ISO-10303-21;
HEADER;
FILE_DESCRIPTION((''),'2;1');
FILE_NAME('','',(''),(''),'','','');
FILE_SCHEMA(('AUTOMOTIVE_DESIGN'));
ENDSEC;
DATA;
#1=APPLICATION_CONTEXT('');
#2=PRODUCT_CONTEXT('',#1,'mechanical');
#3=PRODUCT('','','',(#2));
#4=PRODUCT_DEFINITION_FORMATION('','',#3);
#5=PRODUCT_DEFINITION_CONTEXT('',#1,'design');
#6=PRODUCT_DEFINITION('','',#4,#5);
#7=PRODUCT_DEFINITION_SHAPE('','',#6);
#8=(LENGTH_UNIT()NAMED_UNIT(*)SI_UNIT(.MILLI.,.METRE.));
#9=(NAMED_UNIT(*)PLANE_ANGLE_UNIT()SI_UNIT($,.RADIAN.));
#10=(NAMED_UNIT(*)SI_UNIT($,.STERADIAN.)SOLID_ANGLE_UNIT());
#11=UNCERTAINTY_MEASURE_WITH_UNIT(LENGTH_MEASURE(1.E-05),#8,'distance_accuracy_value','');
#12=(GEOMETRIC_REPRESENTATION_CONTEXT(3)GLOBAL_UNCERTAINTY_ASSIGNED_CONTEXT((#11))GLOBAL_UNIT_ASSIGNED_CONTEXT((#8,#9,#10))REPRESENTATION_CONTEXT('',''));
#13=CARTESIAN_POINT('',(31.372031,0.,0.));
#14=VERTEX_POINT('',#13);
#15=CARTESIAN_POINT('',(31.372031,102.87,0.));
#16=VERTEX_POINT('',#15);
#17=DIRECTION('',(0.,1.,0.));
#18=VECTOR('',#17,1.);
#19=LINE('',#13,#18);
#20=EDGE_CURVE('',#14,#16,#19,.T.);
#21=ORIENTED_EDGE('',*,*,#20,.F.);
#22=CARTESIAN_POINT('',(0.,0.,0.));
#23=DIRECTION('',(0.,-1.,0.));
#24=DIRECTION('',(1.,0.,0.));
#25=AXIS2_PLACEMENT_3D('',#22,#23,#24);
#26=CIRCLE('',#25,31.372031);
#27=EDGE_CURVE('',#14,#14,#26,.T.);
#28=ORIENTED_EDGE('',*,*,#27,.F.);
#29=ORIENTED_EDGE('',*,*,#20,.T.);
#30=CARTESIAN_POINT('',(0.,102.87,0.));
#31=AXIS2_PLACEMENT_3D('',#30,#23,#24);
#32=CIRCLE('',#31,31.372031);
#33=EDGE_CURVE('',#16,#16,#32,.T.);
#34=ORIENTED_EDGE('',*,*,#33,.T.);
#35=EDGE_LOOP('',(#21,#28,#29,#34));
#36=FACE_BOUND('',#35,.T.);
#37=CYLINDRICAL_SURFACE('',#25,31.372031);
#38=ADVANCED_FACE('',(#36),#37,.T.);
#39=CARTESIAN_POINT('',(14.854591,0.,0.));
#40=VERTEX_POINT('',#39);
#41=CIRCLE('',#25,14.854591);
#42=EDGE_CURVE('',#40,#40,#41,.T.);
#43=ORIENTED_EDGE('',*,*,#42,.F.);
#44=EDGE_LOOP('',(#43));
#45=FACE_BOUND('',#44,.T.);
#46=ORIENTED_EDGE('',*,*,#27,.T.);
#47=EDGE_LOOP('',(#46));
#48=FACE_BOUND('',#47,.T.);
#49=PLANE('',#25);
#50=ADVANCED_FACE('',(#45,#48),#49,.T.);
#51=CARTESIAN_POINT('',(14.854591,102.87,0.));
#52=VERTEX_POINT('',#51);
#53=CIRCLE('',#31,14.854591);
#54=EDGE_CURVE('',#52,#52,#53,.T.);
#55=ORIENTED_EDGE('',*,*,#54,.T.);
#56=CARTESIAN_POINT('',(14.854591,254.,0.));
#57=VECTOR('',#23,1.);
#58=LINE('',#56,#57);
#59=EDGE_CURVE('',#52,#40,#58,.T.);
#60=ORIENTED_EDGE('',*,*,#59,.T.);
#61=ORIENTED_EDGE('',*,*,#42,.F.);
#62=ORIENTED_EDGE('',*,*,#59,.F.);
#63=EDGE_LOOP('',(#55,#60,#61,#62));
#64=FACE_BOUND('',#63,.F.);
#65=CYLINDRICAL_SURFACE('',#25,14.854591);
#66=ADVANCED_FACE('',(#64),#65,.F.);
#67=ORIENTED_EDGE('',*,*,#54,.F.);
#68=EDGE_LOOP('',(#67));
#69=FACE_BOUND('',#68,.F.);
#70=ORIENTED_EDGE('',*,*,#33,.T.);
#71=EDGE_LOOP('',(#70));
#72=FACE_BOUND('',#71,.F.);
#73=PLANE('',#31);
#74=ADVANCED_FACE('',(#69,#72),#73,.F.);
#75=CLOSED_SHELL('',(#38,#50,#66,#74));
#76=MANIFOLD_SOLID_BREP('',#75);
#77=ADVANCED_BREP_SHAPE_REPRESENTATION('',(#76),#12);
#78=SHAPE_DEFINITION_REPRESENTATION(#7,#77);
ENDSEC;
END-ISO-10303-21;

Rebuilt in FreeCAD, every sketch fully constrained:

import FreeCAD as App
import Part
import Sketcher
Q = App.Units.Quantity

doc = App.newDocument("Part")
body = doc.addObject("PartDesign::Body", "Body")

sketch1 = doc.addObject("Sketcher::SketchObject", "Sketch")
body.addObject(sketch1)
sketch1.AttachmentSupport = (doc.XZ_Plane, [""])
sketch1.MapMode = "FlatFace"
sketch1.addGeometry(Part.Circle(App.Vector(0, 0, 0), App.Vector(0, 0, 1), 31), False)
sketch1.addConstraint([
    Sketcher.Constraint("Coincident", 0, 3, -1, 1),
    Sketcher.Constraint("Diameter", 0, Q("62.744062 mm")),
])
pad1 = doc.addObject("PartDesign::Pad", "Pad")
body.addObject(pad1)
pad1.Profile = sketch1
pad1.Length = Q("4.05 in")
pad1.Reversed = True

sketch2 = doc.addObject("Sketcher::SketchObject", "Sketch001")
body.addObject(sketch2)
sketch2.AttachmentSupport = (doc.XZ_Plane, [""])
sketch2.MapMode = "FlatFace"
sketch2.addGeometry(Part.Circle(App.Vector(0, 0, 0), App.Vector(0, 0, 1), 15), False)
sketch2.addConstraint([
    Sketcher.Constraint("Coincident", 0, 3, -1, 1),
    Sketcher.Constraint("Diameter", 0, Q("29.709182 mm")),
])
pocket1 = doc.addObject("PartDesign::Pocket", "Pocket")
body.addObject(pocket1)
pocket1.Profile = sketch2
pocket1.Length = Q("20 in")
pocket1.Midplane = True

doc.recompute()
